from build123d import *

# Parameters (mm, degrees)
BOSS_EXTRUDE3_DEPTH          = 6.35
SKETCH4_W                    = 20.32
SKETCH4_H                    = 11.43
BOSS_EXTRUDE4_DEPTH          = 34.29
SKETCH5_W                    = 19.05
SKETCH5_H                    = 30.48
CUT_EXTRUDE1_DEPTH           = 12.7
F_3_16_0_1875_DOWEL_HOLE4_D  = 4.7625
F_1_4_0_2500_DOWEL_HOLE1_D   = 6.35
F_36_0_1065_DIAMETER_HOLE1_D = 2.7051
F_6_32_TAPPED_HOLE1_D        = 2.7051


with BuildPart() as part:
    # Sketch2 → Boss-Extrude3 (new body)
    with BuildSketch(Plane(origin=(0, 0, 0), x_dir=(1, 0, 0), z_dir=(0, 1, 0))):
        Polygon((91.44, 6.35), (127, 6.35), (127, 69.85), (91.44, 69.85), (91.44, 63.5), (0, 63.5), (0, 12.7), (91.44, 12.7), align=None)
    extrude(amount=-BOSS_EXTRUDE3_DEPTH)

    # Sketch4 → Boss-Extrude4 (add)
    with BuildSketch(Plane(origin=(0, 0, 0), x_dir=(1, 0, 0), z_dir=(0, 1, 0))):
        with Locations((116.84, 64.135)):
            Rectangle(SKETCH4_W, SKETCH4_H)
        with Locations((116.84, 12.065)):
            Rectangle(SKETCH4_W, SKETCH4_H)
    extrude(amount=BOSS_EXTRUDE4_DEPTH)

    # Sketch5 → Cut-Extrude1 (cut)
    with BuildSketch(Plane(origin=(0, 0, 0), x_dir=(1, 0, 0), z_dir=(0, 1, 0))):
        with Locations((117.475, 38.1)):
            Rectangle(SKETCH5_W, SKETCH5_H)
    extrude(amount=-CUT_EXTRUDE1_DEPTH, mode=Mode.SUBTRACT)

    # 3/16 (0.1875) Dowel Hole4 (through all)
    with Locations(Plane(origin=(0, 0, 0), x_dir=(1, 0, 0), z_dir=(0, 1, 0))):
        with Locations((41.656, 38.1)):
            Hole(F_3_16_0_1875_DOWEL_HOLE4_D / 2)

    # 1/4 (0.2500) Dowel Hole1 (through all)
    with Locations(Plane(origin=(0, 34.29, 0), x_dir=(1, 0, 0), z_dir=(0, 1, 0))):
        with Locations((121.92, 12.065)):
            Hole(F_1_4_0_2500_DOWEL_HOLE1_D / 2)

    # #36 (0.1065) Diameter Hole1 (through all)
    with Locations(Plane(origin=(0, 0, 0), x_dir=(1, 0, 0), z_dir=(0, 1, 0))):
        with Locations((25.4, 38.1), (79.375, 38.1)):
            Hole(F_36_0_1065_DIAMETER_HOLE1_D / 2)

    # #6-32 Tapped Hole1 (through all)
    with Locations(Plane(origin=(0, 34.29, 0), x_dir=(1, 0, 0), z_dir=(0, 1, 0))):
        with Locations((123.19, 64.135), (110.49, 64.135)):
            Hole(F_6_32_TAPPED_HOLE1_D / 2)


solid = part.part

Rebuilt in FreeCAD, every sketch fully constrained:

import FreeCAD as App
import Part
import Sketcher

V = App.Vector
Q = App.Units.Quantity


def add_polygon(sketch, points):
    """Adds a closed chain of lines whose ends are joined by coincident constraints."""
    first, n = sketch.GeometryCount, len(points)
    for a, b in zip(points, points[1:] + points[:1]):
        sketch.addGeometry(Part.LineSegment(App.Vector(*a, 0), App.Vector(*b, 0)), False)
    for i in range(n):
        sketch.addConstraint(Sketcher.Constraint("Coincident", first + i, 2, first + (i + 1) % n, 1))

doc = App.newDocument("Part")
body = doc.addObject("PartDesign::Body", "Body")

# Sketch on XZ plane
sketch1 = body.newObject("Sketcher::SketchObject", "Sketch")
sketch1.AttachmentSupport = (doc.getObject("XZ_Plane"), [""])
sketch1.MapMode = "FlatFace"
add_polygon(sketch1, [(91.44, -6.35), (127, -6.35), (127, -69.85), (91.44, -69.85), (91.44, -63.5), (0, -63.5), (0, -12.7), (91.44, -12.7)])  # lines 0-7
sketch1.addConstraint(Sketcher.Constraint("Horizontal", 0))
sketch1.addConstraint(Sketcher.Constraint("Vertical", 1))
sketch1.addConstraint(Sketcher.Constraint("Horizontal", 2))
sketch1.addConstraint(Sketcher.Constraint("Vertical", 3))
sketch1.addConstraint(Sketcher.Constraint("Horizontal", 4))
sketch1.addConstraint(Sketcher.Constraint("Vertical", 5))
sketch1.addConstraint(Sketcher.Constraint("Horizontal", 6))
sketch1.addConstraint(Sketcher.Constraint("Vertical", 7))
sketch1.addConstraint(Sketcher.Constraint("PointOnObject", 4, 2, -2))
sketch1.addConstraint(Sketcher.Constraint("Vertical", 3, 2, 6, 2))
sketch1.addConstraint(Sketcher.Constraint("Equal", 3, 7))
sketch1.addConstraint(Sketcher.Constraint("DistanceY", 5, 1, 5, 2, Q("2 in")))
sketch1.addConstraint(Sketcher.Constraint("DistanceX", 0, 1, 0, 2, Q("1.4 in")))
sketch1.addConstraint(Sketcher.Constraint("DistanceX", 4, 2, 4, 1, Q("3.6 in")))
sketch1.addConstraint(Sketcher.Constraint("DistanceY", 1, 2, 1, 1, Q("2.5 in")))
sketch1.addConstraint(Sketcher.Constraint("DistanceY", 3, 2, -1, 1, Q("2.5 in")))
pad1 = body.newObject("PartDesign::Pad", "Pad")
pad1.Profile = sketch1
pad1.Length = Q("0.25 in")

# Sketch on XZ plane
sketch2 = body.newObject("Sketcher::SketchObject", "Sketch001")
sketch2.AttachmentSupport = (doc.getObject("XZ_Plane"), [""])
sketch2.MapMode = "FlatFace"
add_polygon(sketch2, [(106.68, -69.85), (106.68, -58.42), (127, -58.42), (127, -69.85)])  # lines 0-3
add_polygon(sketch2, [(106.68, -17.78), (106.68, -6.35), (127, -6.35), (127, -17.78)])  # lines 4-7
sketch2.addConstraint(Sketcher.Constraint("Vertical", 0))
sketch2.addConstraint(Sketcher.Constraint("Horizontal", 1))
sketch2.addConstraint(Sketcher.Constraint("Vertical", 2))
sketch2.addConstraint(Sketcher.Constraint("Horizontal", 3))
sketch2.addConstraint(Sketcher.Constraint("Vertical", 4))
sketch2.addConstraint(Sketcher.Constraint("Horizontal", 5))
sketch2.addConstraint(Sketcher.Constraint("Vertical", 6))
sketch2.addConstraint(Sketcher.Constraint("Horizontal", 7))
sketch2.addConstraint(Sketcher.Constraint("Vertical", 3, 2, 4, 2))
sketch2.addConstraint(Sketcher.Constraint("Vertical", 2, 2, 5, 2))
sketch2.addConstraint(Sketcher.Constraint("Equal", 2, 4))
sketch2.addConstraint(Sketcher.Constraint("DistanceX", 1, 1, 1, 2, Q("0.8 in")))
sketch2.addConstraint(Sketcher.Constraint("DistanceX", -1, 1, 1, 2, Q("5 in")))
sketch2.addConstraint(Sketcher.Constraint("DistanceY", 0, 1, 0, 2, Q("0.45 in")))
sketch2.addConstraint(Sketcher.Constraint("DistanceY", 0, 2, -1, 1, Q("2.3 in")))
sketch2.addConstraint(Sketcher.Constraint("DistanceY", 6, 2, -1, 1, Q("0.7 in")))
pad2 = body.newObject("PartDesign::Pad", "Pad001")
pad2.Profile = sketch2
pad2.Length = Q("1.35 in")
pad2.Reversed = True

# Sketch on XZ plane
sketch3 = body.newObject("Sketcher::SketchObject", "Sketch002")
sketch3.AttachmentSupport = (doc.getObject("XZ_Plane"), [""])
sketch3.MapMode = "FlatFace"
add_polygon(sketch3, [(107.95, -53.34), (107.95, -22.86), (127, -22.86), (127, -53.34)])  # lines 0-3
sketch3.addConstraint(Sketcher.Constraint("Vertical", 0))
sketch3.addConstraint(Sketcher.Constraint("Horizontal", 1))
sketch3.addConstraint(Sketcher.Constraint("Vertical", 2))
sketch3.addConstraint(Sketcher.Constraint("Horizontal", 3))
sketch3.addConstraint(Sketcher.Constraint("DistanceY", 0, 1, 0, 2, Q("1.2 in")))
sketch3.addConstraint(Sketcher.Constraint("DistanceX", -1, 1, 1, 2, Q("5 in")))
sketch3.addConstraint(Sketcher.Constraint("DistanceX", 1, 1, 1, 2, Q("0.75 in")))
sketch3.addConstraint(Sketcher.Constraint("DistanceY", 0, 2, -1, 1, Q("0.9 in")))
pocket1 = body.newObject("PartDesign::Pocket", "Pocket")
pocket1.Profile = sketch3
pocket1.Length = Q("0.5 in")
pocket1.Reversed = True

# Sketch on XZ plane
sketch4 = body.newObject("Sketcher::SketchObject", "Sketch003")
sketch4.AttachmentSupport = (doc.getObject("XZ_Plane"), [""])
sketch4.MapMode = "FlatFace"
sketch4.addGeometry(Part.Circle(V(41.656, -38.1, 0), V(0, 0, 1), 2.38125), False)
sketch4.addConstraint(Sketcher.Constraint("Diameter", 0, Q("0.1875 in")))
sketch4.addConstraint(Sketcher.Constraint("DistanceY", 0, 3, -1, 1, Q("1.5 in")))
sketch4.addConstraint(Sketcher.Constraint("DistanceX", -1, 1, 0, 3, Q("1.64 in")))
doc.recompute()
hole = body.newObject("PartDesign::Hole", "Hole")
hole.Profile = sketch4
hole.ThreadType = "None"
hole.Diameter = Q("0.1875 in")
hole.DepthType = "ThroughAll"
hole.Reversed = True

# Sketch on XZ plane
sketch5 = body.newObject("Sketcher::SketchObject", "Sketch004")
sketch5.AttachmentSupport = (doc.getObject("XZ_Plane"), [""])
sketch5.MapMode = "FlatFace"
sketch5.AttachmentOffset = App.Placement(V(0, 0, -1.35 * 25.4), App.Rotation())
sketch5.addGeometry(Part.Circle(V(121.92, -12.065, 0), V(0, 0, 1), 3.175), False)
sketch5.addConstraint(Sketcher.Constraint("Diameter", 0, Q("0.25 in")))
sketch5.addConstraint(Sketcher.Constraint("DistanceX", -1, 1, 0, 3, Q("4.8 in")))
sketch5.addConstraint(Sketcher.Constraint("DistanceY", 0, 3, -1, 1, Q("0.475 in")))
doc.recompute()
hole2 = body.newObject("PartDesign::Hole", "Hole001")
hole2.Profile = sketch5
hole2.ThreadType = "None"
hole2.Diameter = Q("0.25 in")
hole2.DepthType = "ThroughAll"
hole2.Reversed = True

# Sketch on XZ plane
sketch6 = body.newObject("Sketcher::SketchObject", "Sketch005")
sketch6.AttachmentSupport = (doc.getObject("XZ_Plane"), [""])
sketch6.MapMode = "FlatFace"
sketch6.addGeometry(Part.Circle(V(25.4, -38.1, 0), V(0, 0, 1), 1.35255), False)
sketch6.addGeometry(Part.Circle(V(79.375, -38.1, 0), V(0, 0, 1), 1.35255), False)
sketch6.addConstraint(Sketcher.Constraint("Equal", 0, 1))
sketch6.addConstraint(Sketcher.Constraint("Horizontal", 0, 3, 1, 3))
sketch6.addConstraint(Sketcher.Constraint("DistanceX", -1, 1, 0, 3, Q("1 in")))
sketch6.addConstraint(Sketcher.Constraint("Diameter", 0, Q("0.1065 in")))
sketch6.addConstraint(Sketcher.Constraint("DistanceY", 0, 3, -1, 1, Q("1.5 in")))
sketch6.addConstraint(Sketcher.Constraint("DistanceX", -1, 1, 1, 3, Q("3.125 in")))
doc.recompute()
hole3 = body.newObject("PartDesign::Hole", "Hole002")
hole3.Profile = sketch6
hole3.ThreadType = "None"
hole3.Diameter = Q("0.1065 in")
hole3.DepthType = "ThroughAll"
hole3.Reversed = True

# Sketch on XZ plane
sketch7 = body.newObject("Sketcher::SketchObject", "Sketch006")
sketch7.AttachmentSupport = (doc.getObject("XZ_Plane"), [""])
sketch7.MapMode = "FlatFace"
sketch7.AttachmentOffset = App.Placement(V(0, 0, -1.35 * 25.4), App.Rotation())
sketch7.addGeometry(Part.Circle(V(123.19, -64.135, 0), V(0, 0, 1), 1.35255), False)
sketch7.addGeometry(Part.Circle(V(110.49, -64.135, 0), V(0, 0, 1), 1.35255), False)
sketch7.addConstraint(Sketcher.Constraint("Equal", 0, 1))
sketch7.addConstraint(Sketcher.Constraint("Horizontal", 0, 3, 1, 3))
sketch7.addConstraint(Sketcher.Constraint("Diameter", 0, Q("0.1065 in")))
sketch7.addConstraint(Sketcher.Constraint("DistanceX", 1, 3, 0, 3, Q("0.5 in")))
sketch7.addConstraint(Sketcher.Constraint("DistanceX", -1, 1, 0, 3, Q("4.85 in")))
sketch7.addConstraint(Sketcher.Constraint("DistanceY", 0, 3, -1, 1, Q("2.525 in")))
doc.recompute()
hole4 = body.newObject("PartDesign::Hole", "Hole003")
hole4.Profile = sketch7
hole4.ThreadType = "None"
hole4.Diameter = Q("0.1065 in")
hole4.DepthType = "ThroughAll"
hole4.Reversed = True

doc.recompute()
